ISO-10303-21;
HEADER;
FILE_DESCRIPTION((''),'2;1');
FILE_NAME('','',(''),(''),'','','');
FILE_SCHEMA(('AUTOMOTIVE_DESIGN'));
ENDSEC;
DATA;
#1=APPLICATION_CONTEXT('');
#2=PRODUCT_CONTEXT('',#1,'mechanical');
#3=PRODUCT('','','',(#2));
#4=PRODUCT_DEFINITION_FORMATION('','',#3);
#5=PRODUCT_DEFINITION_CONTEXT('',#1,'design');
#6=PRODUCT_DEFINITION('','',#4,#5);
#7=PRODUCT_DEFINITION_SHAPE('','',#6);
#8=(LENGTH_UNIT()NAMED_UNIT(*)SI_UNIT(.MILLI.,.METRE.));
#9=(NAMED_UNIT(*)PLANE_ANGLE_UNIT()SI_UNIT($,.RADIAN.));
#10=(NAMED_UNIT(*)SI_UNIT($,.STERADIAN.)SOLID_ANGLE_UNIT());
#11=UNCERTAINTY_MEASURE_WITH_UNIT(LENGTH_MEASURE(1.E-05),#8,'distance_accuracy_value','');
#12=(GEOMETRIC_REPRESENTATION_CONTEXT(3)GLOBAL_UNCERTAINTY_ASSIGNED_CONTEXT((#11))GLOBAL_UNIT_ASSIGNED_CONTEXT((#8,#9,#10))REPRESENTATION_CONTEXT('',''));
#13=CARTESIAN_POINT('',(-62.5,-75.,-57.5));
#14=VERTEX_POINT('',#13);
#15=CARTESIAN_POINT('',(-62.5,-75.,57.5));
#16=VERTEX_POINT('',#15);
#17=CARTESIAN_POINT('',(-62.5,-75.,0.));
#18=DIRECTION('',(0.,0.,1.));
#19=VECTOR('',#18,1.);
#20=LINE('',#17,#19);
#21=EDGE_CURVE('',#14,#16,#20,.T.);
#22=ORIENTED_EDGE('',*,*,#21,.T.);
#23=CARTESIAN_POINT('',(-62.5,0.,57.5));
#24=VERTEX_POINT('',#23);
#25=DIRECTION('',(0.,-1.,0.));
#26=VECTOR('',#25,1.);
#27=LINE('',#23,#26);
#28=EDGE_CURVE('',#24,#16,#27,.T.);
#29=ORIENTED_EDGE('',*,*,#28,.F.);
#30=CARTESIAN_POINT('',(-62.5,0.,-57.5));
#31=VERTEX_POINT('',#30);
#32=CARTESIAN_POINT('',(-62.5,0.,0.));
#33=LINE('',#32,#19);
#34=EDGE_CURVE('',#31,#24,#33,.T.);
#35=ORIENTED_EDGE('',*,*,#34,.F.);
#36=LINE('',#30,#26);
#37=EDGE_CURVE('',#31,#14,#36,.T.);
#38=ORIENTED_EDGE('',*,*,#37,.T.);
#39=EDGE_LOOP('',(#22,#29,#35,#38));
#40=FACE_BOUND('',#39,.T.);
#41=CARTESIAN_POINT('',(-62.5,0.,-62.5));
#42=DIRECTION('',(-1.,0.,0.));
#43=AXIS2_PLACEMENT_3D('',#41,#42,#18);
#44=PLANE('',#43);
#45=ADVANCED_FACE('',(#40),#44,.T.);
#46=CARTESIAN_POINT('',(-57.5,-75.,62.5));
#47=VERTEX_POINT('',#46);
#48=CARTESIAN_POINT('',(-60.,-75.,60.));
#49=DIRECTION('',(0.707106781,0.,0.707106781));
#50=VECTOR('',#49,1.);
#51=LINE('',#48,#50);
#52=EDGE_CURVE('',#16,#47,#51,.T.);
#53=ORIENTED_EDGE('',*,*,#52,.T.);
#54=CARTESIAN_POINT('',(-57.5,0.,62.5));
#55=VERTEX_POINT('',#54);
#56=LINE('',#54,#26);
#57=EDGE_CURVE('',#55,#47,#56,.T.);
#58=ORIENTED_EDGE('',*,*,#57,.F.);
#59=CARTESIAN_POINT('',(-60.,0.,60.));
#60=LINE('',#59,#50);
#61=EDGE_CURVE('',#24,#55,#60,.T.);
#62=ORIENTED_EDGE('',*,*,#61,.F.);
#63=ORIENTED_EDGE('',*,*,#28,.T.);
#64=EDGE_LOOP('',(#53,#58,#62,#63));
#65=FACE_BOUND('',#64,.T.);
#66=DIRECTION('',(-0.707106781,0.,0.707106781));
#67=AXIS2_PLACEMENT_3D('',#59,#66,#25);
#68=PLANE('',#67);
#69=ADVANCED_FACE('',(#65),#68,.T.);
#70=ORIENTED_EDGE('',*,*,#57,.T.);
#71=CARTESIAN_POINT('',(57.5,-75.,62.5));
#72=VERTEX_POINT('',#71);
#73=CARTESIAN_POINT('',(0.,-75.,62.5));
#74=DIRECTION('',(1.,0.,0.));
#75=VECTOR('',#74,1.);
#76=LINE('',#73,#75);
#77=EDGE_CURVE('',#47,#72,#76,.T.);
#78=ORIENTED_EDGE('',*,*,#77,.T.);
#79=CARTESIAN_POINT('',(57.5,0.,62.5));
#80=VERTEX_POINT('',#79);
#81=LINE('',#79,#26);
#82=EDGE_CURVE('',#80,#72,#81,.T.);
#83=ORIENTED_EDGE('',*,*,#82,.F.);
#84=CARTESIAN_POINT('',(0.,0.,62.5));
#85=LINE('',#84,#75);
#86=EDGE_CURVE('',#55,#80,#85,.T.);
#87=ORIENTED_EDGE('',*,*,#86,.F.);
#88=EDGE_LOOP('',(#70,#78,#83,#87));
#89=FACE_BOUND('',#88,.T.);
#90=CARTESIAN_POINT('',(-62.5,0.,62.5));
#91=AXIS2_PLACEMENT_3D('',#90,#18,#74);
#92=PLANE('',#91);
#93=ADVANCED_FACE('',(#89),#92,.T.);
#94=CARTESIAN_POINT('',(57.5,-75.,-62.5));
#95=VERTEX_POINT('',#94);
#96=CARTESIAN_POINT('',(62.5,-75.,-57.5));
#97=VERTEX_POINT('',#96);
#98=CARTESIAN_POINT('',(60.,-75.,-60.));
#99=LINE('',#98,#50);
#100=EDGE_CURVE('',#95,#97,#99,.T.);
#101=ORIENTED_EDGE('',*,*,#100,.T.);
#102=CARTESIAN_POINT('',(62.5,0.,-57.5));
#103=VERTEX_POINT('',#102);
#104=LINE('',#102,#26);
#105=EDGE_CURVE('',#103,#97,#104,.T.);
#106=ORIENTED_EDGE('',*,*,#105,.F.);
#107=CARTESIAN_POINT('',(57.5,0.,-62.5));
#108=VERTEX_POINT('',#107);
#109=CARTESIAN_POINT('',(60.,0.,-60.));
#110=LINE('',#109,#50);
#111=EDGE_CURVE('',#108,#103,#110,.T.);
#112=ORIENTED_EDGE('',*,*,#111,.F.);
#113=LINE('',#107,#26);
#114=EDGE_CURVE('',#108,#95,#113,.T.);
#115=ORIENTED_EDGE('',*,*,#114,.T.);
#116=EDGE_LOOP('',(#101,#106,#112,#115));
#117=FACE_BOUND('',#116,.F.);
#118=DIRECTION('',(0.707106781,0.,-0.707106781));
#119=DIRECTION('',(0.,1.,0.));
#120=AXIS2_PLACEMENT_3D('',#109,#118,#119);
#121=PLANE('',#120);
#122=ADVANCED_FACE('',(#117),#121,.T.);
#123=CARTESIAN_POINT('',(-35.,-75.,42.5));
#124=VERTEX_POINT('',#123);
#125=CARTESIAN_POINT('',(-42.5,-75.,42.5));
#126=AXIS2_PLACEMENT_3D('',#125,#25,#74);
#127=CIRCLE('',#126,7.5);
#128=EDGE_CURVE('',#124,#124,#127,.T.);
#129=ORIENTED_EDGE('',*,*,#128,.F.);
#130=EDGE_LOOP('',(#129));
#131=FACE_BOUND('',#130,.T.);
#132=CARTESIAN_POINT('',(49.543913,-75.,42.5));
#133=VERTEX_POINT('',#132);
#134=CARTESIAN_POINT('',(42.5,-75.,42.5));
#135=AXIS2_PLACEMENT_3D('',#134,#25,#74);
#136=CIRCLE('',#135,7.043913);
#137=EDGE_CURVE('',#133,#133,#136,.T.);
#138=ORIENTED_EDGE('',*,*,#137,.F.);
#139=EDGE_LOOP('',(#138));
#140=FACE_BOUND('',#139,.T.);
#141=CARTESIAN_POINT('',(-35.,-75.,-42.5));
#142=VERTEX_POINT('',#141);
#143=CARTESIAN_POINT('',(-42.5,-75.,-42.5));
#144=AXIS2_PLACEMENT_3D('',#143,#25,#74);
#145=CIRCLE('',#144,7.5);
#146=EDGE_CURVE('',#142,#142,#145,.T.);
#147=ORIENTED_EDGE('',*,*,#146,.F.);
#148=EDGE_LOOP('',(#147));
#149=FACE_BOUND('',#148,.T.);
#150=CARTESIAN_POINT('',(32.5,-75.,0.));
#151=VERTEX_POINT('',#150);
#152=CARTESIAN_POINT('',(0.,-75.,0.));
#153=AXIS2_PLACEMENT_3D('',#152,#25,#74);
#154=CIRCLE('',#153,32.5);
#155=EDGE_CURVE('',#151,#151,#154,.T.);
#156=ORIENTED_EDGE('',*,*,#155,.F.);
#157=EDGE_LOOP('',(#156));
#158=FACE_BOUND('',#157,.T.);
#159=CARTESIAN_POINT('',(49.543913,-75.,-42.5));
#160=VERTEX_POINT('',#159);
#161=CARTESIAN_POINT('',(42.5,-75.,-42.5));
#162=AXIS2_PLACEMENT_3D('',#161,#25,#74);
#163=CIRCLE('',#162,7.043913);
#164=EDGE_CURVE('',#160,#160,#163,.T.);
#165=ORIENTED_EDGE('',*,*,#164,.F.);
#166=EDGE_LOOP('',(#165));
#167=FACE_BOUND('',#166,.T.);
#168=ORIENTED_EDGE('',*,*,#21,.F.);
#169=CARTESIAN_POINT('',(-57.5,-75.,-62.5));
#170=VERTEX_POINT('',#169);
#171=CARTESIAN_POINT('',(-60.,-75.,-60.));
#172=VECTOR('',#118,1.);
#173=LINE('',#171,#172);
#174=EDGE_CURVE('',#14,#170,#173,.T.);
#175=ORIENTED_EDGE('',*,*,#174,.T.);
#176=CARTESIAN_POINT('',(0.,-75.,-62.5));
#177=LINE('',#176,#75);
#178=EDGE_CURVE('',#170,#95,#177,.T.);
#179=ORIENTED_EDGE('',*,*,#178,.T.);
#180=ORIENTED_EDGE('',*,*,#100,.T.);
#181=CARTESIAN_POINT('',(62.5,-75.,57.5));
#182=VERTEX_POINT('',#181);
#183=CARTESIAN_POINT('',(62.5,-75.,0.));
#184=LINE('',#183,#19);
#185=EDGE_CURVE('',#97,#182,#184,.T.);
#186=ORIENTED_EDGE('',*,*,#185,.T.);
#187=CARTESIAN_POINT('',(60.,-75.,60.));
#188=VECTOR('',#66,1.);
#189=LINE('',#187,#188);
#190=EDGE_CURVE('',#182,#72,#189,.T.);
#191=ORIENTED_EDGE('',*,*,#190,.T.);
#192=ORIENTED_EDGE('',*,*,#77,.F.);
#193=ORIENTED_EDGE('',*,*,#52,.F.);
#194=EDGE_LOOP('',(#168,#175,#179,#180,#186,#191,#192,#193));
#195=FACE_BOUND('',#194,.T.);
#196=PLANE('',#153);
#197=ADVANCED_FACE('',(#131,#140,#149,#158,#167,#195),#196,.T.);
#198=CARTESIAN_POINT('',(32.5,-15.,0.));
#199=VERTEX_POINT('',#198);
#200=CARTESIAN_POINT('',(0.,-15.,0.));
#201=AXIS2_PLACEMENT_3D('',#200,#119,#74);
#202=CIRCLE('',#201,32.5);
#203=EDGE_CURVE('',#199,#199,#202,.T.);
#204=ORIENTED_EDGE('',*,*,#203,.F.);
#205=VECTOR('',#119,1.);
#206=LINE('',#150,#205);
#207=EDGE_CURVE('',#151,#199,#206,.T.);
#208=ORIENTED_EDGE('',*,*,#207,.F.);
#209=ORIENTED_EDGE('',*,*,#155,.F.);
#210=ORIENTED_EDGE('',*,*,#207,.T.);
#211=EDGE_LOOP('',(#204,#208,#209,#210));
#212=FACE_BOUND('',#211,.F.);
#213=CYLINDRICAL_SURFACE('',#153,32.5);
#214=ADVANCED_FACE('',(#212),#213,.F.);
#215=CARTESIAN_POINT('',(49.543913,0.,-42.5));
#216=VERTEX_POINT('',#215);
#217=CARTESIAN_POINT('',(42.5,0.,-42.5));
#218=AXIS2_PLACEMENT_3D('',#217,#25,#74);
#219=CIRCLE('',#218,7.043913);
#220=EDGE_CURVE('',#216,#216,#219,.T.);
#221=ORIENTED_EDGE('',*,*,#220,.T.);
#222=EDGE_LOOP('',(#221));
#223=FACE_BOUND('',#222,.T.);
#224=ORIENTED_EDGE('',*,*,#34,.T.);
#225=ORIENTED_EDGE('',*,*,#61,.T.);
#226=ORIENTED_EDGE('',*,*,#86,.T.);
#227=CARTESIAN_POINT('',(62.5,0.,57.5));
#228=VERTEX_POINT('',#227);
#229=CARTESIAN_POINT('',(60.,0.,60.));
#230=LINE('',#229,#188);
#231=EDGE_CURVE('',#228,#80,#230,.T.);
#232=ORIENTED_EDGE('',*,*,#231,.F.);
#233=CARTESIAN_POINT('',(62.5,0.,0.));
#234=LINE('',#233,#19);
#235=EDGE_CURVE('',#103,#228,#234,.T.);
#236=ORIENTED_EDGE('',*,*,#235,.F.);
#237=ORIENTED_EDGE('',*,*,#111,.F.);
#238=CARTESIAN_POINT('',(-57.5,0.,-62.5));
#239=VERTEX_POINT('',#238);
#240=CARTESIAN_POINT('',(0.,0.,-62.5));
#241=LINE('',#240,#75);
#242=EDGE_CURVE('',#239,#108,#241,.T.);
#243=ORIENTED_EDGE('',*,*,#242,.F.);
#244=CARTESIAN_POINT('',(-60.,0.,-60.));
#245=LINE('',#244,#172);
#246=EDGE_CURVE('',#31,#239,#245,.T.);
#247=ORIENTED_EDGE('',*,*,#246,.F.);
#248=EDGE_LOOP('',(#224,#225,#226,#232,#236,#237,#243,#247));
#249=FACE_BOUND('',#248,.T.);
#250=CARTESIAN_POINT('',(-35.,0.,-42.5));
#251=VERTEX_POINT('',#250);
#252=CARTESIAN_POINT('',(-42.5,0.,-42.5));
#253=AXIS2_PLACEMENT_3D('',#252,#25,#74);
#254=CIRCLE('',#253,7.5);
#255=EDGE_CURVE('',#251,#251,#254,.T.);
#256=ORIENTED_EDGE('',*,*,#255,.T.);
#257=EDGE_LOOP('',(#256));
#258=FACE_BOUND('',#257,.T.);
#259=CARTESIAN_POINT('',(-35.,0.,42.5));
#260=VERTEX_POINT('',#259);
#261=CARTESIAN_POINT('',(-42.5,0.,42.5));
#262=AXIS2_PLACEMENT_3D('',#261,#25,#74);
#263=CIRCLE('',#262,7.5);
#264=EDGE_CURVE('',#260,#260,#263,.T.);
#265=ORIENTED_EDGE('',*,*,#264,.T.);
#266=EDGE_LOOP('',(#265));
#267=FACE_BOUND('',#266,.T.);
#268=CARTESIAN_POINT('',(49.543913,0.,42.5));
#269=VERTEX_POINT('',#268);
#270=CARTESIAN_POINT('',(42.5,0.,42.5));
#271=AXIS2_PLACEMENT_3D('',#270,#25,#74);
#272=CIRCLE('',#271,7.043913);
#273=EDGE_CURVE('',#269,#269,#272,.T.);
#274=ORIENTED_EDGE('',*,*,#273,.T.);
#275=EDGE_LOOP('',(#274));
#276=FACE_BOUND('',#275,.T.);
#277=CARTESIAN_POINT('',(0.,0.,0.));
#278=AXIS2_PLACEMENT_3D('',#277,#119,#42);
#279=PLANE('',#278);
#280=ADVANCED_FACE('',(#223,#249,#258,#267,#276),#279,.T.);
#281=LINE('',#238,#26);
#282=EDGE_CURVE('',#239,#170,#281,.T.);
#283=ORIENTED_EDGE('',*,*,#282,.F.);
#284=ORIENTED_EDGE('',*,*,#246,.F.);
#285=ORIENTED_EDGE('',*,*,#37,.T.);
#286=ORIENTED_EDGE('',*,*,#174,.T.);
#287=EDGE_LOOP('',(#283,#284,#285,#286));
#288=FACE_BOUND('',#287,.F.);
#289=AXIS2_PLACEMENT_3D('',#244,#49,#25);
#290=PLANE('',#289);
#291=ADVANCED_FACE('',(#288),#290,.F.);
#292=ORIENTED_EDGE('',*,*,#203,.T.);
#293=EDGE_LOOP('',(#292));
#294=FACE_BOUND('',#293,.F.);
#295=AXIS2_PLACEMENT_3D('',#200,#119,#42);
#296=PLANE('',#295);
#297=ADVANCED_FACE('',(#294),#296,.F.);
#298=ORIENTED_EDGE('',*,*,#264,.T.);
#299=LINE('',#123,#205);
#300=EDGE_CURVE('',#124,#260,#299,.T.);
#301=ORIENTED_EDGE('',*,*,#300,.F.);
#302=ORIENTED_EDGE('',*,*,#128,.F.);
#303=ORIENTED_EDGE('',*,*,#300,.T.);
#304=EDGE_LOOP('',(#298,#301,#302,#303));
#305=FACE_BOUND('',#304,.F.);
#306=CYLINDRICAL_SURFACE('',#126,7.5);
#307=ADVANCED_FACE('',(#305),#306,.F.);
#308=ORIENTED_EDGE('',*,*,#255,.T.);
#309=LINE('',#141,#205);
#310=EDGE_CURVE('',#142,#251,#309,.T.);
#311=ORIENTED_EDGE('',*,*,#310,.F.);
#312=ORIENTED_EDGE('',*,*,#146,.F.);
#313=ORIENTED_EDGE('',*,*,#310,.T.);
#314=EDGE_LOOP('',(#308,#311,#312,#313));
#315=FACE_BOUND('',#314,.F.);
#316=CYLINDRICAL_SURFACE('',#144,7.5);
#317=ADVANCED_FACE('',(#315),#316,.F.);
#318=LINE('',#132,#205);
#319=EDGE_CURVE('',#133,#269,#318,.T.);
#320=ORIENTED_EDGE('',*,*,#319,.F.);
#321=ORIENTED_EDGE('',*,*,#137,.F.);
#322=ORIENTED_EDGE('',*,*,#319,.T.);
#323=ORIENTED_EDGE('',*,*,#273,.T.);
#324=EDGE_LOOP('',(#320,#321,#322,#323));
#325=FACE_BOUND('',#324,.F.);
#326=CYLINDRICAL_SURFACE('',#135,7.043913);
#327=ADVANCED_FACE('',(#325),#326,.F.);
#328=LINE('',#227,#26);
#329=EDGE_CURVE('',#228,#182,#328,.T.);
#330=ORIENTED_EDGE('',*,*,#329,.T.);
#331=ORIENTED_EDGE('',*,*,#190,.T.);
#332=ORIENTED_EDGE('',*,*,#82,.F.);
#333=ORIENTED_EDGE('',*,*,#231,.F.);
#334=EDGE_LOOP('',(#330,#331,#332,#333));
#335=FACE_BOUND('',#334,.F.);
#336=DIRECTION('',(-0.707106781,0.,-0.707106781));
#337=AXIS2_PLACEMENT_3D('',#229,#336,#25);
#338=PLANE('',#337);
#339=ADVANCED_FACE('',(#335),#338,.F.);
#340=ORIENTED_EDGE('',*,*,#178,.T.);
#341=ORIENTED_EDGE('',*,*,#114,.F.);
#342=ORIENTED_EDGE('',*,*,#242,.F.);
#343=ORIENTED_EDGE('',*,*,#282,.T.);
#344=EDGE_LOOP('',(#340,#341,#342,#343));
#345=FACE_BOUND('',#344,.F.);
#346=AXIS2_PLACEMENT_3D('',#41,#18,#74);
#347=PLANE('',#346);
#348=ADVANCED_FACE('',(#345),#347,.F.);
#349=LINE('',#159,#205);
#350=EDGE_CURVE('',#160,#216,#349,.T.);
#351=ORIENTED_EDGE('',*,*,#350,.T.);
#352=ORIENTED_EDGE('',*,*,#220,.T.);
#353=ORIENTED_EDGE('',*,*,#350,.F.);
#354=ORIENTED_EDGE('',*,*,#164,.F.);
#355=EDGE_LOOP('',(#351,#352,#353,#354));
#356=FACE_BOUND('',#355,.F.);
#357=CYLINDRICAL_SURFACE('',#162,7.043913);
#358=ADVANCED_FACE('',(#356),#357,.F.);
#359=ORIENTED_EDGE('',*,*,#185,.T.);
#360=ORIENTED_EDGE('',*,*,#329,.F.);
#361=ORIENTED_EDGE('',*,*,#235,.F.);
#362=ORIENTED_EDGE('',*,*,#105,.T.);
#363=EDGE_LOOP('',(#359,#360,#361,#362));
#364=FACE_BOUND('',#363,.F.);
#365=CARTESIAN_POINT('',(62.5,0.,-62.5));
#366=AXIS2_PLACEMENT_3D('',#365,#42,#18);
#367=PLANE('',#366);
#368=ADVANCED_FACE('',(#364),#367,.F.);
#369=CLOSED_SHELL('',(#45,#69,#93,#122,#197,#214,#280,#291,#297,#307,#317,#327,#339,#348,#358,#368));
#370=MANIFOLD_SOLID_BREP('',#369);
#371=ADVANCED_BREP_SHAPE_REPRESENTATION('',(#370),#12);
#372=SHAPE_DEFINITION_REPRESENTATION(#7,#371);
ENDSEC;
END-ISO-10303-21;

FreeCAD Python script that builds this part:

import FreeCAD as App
import Part
import Sketcher
Q = App.Units.Quantity


def edges_at(feature, points):
    """Names of the edges that pass closest to the given points."""
    edges = feature.Shape.Edges
    near = lambda p: min(range(len(edges)), key=lambda i: edges[i].distToShape(Part.Vertex(*p))[0])
    return sorted({f"Edge{near(p) + 1}" for p in points})


def add_polygon(sketch, points):
    """Adds a closed chain of lines whose ends are joined by coincident constraints."""
    first, n = sketch.GeometryCount, len(points)
    for a, b in zip(points, points[1:] + points[:1]):
        sketch.addGeometry(Part.LineSegment(App.Vector(*a, 0), App.Vector(*b, 0)), False)
    for i in range(n):
        sketch.addConstraint(Sketcher.Constraint("Coincident", first + i, 2, first + (i + 1) % n, 1))

doc = App.newDocument("Part")
body = doc.addObject("PartDesign::Body", "Body")

sketch1 = body.newObject("Sketcher::SketchObject", "Sketch")
sketch1.AttachmentSupport = (doc.getObject("XZ_Plane"), [""])
sketch1.MapMode = "FlatFace"
add_polygon(sketch1, [(-62.5, 62.5), (-62.5, -62.5), (62.5, -62.5), (62.5, 62.5)])
sketch1.addConstraint([
    Sketcher.Constraint("Vertical", 0),
    Sketcher.Constraint("Horizontal", 1),
    Sketcher.Constraint("Vertical", 2),
    Sketcher.Constraint("Horizontal", 3),
    Sketcher.Constraint("Symmetric", 0, 2, 2, 2, -1, 1),
    Sketcher.Constraint("Equal", 3, 0),
    Sketcher.Constraint("DistanceX", 1, 1, 1, 2, Q("125 mm")),
])
pad1 = body.newObject("PartDesign::Pad", "Pad")
pad1.Profile = sketch1
pad1.Length = 75
doc.recompute()

chamfer = body.newObject("PartDesign::Chamfer", "Chamfer")
chamfer.Base = (pad1, edges_at(pad1, [
    (62.5, -37.5, 62.5),
    (-62.5, -37.5, 62.5),
    (62.5, -37.5, -62.5),
    (-62.5, -37.5, -62.5),
]))
chamfer.Size = 5

sketch2 = body.newObject("Sketcher::SketchObject", "Sketch001")
sketch2.AttachmentSupport = (doc.getObject("XZ_Plane"), [""])
sketch2.MapMode = "FlatFace"
sketch2.AttachmentOffset = App.Placement(App.Vector(0, 0, 75), App.Rotation())
sketch2.addGeometry([
    Part.Circle(App.Vector(-42.5, 42.5, 0), App.Vector(0, 0, 1), 7.5),
    Part.Circle(App.Vector(-42.5, -42.5, 0), App.Vector(0, 0, 1), 7.5),
    Part.Circle(App.Vector(42.5, -42.5, 0), App.Vector(0, 0, 1), 7.043913),
    Part.Circle(App.Vector(42.5, 42.5, 0), App.Vector(0, 0, 1), 7.043913),
], False)
sketch2.addConstraint([
    Sketcher.Constraint("Equal", 0, 1),
    Sketcher.Constraint("Equal", 2, 3),
    Sketcher.Constraint("Symmetric", 0, 3, 2, 3, -1, 1),
    Sketcher.Constraint("Symmetric", 1, 3, 3, 3, -1, 1),
    Sketcher.Constraint("Symmetric", 1, 3, 2, 3, -2),
    Sketcher.Constraint("Diameter", 0, Q("15 mm")),
    Sketcher.Constraint("DistanceY", 1, 3, 0, 3, Q("85 mm")),
    Sketcher.Constraint("DistanceX", 1, 3, 2, 3, Q("85 mm")),
    Sketcher.Constraint("Diameter", 2, Q("14.087826 mm")),
])
pocket1 = body.newObject("PartDesign::Pocket", "Pocket")
pocket1.Profile = sketch2
pocket1.Type = "ThroughAll"

sketch3 = body.newObject("Sketcher::SketchObject", "Sketch002")
sketch3.AttachmentSupport = (doc.getObject("XZ_Plane"), [""])
sketch3.MapMode = "FlatFace"
sketch3.AttachmentOffset = App.Placement(App.Vector(0, 0, 75), App.Rotation())
sketch3.addGeometry(Part.Circle(App.Vector(0, 0, 0), App.Vector(0, 0, 1), 32.5), False)
sketch3.addConstraint([
    Sketcher.Constraint("Coincident", 0, 3, -1, 1),
    Sketcher.Constraint("Diameter", 0, Q("65 mm")),
])
pocket2 = body.newObject("PartDesign::Pocket", "Pocket001")
pocket2.Profile = sketch3
pocket2.Type = "ThroughAll"

sketch4 = body.newObject("Sketcher::SketchObject", "Sketch003")
sketch4.AttachmentSupport = (doc.getObject("XZ_Plane"), [""])
sketch4.MapMode = "FlatFace"
sketch4.addGeometry(Part.Circle(App.Vector(0, 0, 0), App.Vector(0, 0, 1), 32.5), False)
sketch4.addConstraint([
    Sketcher.Constraint("Coincident", 0, 3, -1, 1),
    Sketcher.Constraint("Diameter", 0, Q("65 mm")),
])
pad2 = body.newObject("PartDesign::Pad", "Pad001")
pad2.Profile = sketch4
pad2.Length = 15

doc.recompute()
